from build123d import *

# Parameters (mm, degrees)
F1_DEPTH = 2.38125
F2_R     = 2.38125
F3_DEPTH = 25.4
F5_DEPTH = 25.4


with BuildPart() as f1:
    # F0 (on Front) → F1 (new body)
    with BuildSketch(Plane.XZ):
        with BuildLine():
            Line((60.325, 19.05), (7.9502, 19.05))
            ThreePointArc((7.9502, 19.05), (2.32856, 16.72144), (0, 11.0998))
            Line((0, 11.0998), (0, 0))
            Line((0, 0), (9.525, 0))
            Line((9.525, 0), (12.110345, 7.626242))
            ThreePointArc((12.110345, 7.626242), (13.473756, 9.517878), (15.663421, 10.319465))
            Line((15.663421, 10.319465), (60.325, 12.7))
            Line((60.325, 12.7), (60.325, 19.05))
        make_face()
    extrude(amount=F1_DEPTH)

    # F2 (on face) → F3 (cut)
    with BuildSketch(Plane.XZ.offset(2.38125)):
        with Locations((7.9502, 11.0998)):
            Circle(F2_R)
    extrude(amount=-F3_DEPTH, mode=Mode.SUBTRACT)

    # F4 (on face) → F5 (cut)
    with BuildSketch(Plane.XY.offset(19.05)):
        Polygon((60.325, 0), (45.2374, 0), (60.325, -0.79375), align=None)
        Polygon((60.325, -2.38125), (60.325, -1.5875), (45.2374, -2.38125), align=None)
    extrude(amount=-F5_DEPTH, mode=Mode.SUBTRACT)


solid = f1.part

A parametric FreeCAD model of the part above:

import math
import FreeCAD as App
import Part
import Sketcher
from FreeCAD import Vector
Q = App.Units.Quantity

doc = App.newDocument("Part")
body = doc.addObject("PartDesign::Body", "Body")

sketch1 = body.newObject("Sketcher::SketchObject", "Sketch")
sketch1.AttachmentSupport = (doc.getObject("XZ_Plane"), [""])
sketch1.MapMode = "FlatFace"
sketch1.addGeometry([
    Part.LineSegment(Vector(60.325, 19.05, 0), Vector(7.9502, 19.05, 0)),
    Part.ArcOfCircle(Part.Circle(Vector(7.950201, 11.099799, 0), Vector(0, 0, 1), 7.950201), math.radians(90.000008), math.radians(179.999992)),
    Part.LineSegment(Vector(0, 11.0998, 0), Vector(0, 0, 0)),
    Part.LineSegment(Vector(0, 0, 0), Vector(9.525, 0, 0)),
    Part.LineSegment(Vector(9.525, 0, 0), Vector(12.110345, 7.626242, 0)),
    Part.ArcOfCircle(Part.Circle(Vector(15.874998, 6.350002, 0), Vector(0, 0, 1), 3.975097), math.radians(93.051043), math.radians(161.273036)),
    Part.LineSegment(Vector(15.663421, 10.319465, 0), Vector(60.325, 12.7, 0)),
    Part.LineSegment(Vector(60.325, 12.7, 0), Vector(60.325, 19.05, 0)),
], False)
sketch1.addConstraint([
    Sketcher.Constraint("Tangent", 0, 2, 1, 1),
    Sketcher.Constraint("Tangent", 1, 2, 2, 1),
    Sketcher.Constraint("Coincident", 2, 2, 3, 1),
    Sketcher.Constraint("Coincident", 3, 2, 4, 1),
    Sketcher.Constraint("Tangent", 4, 2, 5, 2),
    Sketcher.Constraint("Tangent", 5, 1, 6, 1),
    Sketcher.Constraint("Coincident", 6, 2, 7, 1),
    Sketcher.Constraint("Coincident", 7, 2, 0, 1),
    Sketcher.Constraint("Horizontal", 0),
    Sketcher.Constraint("Vertical", 2),
    Sketcher.Constraint("Horizontal", 3),
    Sketcher.Constraint("Vertical", 7),
    Sketcher.Constraint("Coincident", 2, 2, -1, 1),
    Sketcher.Constraint("Radius", 1, Q("0.313 in")),
    Sketcher.Constraint("DistanceX", 3, 2, 6, 2, Q("2 in")),
    Sketcher.Constraint("DistanceY", 7, 1, 7, 2, Q("0.25 in")),
    Sketcher.Constraint("DistanceY", -1, 1, 6, 2, Q("0.5 in")),
    Sketcher.Constraint("Radius", 5, Q("0.1564999 in")),
    Sketcher.Constraint("DistanceY", 5, 3, 0, 2, Q("0.4999999 in")),
    Sketcher.Constraint("DistanceX", 0, 2, 0, 1, Q("2.062 in")),
    Sketcher.Constraint("DistanceX", 3, 2, 5, 3, Q("0.2499999 in")),
])
pad1 = body.newObject("PartDesign::Pad", "Pad")
pad1.Profile = sketch1
pad1.Length = Q("0.09375 in")

sketch2 = body.newObject("Sketcher::SketchObject", "Sketch001")
sketch2.AttachmentSupport = (doc.getObject("XZ_Plane"), [""])
sketch2.MapMode = "FlatFace"
sketch2.AttachmentOffset = App.Placement(Vector(0, 0, 0.09375 * 25.4), App.Rotation())
sketch2.addGeometry(Part.Circle(Vector(7.9502, 11.0998, 0), Vector(0, 0, 1), 2.38125), False)
sketch2.addConstraint([
    Sketcher.Constraint("Diameter", 0, Q("0.1875 in")),
    Sketcher.Constraint("DistanceX", -1, 1, 0, 3, Q("0.313 in")),
    Sketcher.Constraint("DistanceY", -1, 1, 0, 3, Q("0.437 in")),
])
pocket1 = body.newObject("PartDesign::Pocket", "Pocket")
pocket1.Profile = sketch2
pocket1.Length = Q("1 in")

sketch3 = body.newObject("Sketcher::SketchObject", "Sketch002")
sketch3.AttachmentSupport = (doc.getObject("XY_Plane"), [""])
sketch3.MapMode = "FlatFace"
sketch3.AttachmentOffset = App.Placement(Vector(0, 0, 0.75 * 25.4), App.Rotation())
sketch3.addGeometry([
    Part.LineSegment(Vector(60.325, 0, 0), Vector(45.2374, 0, 0)),
    Part.LineSegment(Vector(45.2374, 0, 0), Vector(60.325, -0.79375, 0)),
    Part.LineSegment(Vector(60.325, -0.79375, 0), Vector(60.325, 0, 0)),
    Part.LineSegment(Vector(60.325, -2.38125, 0), Vector(60.325, -1.5875, 0)),
    Part.LineSegment(Vector(60.325, -1.5875, 0), Vector(45.2374, -2.38125, 0)),
    Part.LineSegment(Vector(45.2374, -2.38125, 0), Vector(60.325, -2.38125, 0)),
], False)
sketch3.addConstraint([
    Sketcher.Constraint("Coincident", 0, 2, 1, 1),
    Sketcher.Constraint("Coincident", 1, 2, 2, 1),
    Sketcher.Constraint("Coincident", 2, 2, 0, 1),
    Sketcher.Constraint("Coincident", 3, 2, 4, 1),
    Sketcher.Constraint("Coincident", 4, 2, 5, 1),
    Sketcher.Constraint("Coincident", 5, 2, 3, 1),
    Sketcher.Constraint("Horizontal", 0),
    Sketcher.Constraint("Vertical", 2),
    Sketcher.Constraint("Vertical", 3),
    Sketcher.Constraint("Horizontal", 5),
    Sketcher.Constraint("PointOnObject", 0, 2, -1),
    Sketcher.Constraint("Vertical", 2, 2, 3, 2),
    Sketcher.Constraint("Vertical", 0, 2, 4, 2),
    Sketcher.Constraint("Equal", 2, 3),
    Sketcher.Constraint("DistanceX", 0, 2, 0, 1, Q("0.594 in")),
    Sketcher.Constraint("DistanceY", 2, 1, 2, 2, Q("0.03125 in")),
    Sketcher.Constraint("DistanceX", -1, 1, 0, 2, Q("1.781 in")),
    Sketcher.Constraint("DistanceY", 3, 2, -1, 1, Q("0.0625 in")),
])
pocket2 = body.newObject("PartDesign::Pocket", "Pocket001")
pocket2.Profile = sketch3
pocket2.Length = Q("1 in")

doc.recompute()
